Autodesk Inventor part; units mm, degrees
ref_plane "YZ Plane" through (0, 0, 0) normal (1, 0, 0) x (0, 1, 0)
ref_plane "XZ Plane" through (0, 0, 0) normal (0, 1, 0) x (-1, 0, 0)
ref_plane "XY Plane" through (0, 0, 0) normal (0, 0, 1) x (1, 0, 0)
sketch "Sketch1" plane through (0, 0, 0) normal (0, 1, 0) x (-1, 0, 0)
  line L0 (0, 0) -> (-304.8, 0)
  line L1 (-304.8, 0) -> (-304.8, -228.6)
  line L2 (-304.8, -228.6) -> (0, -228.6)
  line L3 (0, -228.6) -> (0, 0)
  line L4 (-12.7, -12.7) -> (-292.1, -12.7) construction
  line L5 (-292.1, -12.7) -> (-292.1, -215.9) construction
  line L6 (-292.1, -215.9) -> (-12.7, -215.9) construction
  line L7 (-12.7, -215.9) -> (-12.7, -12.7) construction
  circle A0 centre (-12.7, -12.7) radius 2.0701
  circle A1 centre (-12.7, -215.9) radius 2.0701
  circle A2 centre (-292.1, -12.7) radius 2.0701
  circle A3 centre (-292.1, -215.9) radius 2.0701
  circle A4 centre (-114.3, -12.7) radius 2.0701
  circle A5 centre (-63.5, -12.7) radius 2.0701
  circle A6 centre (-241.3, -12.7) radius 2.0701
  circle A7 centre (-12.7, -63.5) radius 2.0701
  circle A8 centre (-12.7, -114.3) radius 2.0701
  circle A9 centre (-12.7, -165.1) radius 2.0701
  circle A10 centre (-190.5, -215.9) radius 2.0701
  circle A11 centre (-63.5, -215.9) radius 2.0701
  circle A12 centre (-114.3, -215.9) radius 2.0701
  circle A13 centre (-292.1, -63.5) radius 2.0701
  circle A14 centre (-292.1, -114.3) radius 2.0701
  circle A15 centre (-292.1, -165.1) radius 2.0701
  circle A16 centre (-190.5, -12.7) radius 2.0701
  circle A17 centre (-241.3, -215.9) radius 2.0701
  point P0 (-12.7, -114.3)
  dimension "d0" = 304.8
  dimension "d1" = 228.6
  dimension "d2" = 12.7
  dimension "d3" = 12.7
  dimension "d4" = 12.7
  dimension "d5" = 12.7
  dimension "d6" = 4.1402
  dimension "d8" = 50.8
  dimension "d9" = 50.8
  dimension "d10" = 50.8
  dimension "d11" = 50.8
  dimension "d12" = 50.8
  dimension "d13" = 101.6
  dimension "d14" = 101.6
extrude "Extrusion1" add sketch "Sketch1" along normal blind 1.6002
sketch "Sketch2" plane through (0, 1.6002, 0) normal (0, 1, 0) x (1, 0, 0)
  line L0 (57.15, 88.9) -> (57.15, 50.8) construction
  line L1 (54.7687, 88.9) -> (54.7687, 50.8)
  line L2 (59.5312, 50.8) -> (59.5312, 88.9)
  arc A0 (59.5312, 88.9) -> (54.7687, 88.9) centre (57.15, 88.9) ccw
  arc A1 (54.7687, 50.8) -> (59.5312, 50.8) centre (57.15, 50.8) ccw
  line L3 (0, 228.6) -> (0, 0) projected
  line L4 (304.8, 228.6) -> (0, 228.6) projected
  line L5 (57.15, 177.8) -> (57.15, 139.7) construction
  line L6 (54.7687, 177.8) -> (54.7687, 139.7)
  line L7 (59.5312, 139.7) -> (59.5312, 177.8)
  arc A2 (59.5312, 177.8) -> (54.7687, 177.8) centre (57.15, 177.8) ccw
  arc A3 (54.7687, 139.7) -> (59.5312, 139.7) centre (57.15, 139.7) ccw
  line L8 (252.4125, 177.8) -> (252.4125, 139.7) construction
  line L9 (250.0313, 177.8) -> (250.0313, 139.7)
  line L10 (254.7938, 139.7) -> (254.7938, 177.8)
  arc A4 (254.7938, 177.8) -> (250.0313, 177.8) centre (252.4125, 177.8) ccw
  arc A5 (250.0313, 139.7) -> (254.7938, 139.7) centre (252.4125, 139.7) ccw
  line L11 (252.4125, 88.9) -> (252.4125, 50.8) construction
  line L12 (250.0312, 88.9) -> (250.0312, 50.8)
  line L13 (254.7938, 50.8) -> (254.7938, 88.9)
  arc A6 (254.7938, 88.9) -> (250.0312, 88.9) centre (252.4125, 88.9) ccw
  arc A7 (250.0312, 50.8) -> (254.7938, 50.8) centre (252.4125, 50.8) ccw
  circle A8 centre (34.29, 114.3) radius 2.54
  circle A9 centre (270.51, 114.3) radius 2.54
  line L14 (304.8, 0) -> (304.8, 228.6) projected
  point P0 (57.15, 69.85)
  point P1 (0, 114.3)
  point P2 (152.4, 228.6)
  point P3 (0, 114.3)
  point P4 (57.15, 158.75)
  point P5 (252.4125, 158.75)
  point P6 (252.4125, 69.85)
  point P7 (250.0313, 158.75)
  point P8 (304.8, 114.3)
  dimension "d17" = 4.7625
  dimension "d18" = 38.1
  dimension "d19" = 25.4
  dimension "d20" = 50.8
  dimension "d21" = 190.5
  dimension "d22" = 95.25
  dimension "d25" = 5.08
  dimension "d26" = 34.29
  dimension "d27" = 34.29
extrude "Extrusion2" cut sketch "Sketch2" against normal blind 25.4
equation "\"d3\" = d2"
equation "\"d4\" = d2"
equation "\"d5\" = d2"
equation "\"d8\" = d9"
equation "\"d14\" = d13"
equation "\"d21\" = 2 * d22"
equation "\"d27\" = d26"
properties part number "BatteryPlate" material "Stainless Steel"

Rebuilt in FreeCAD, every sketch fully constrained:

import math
import FreeCAD as App
import Part
import Sketcher
Q = App.Units.Quantity

doc = App.newDocument("Part")
body = doc.addObject("PartDesign::Body", "Body")

sketch1 = doc.addObject("Sketcher::SketchObject", "Sketch")
body.addObject(sketch1)
sketch1.AttachmentSupport = (doc.XZ_Plane, [""])
sketch1.MapMode = "FlatFace"
sketch1.addGeometry(Part.LineSegment(App.Vector(0, -228.6, 0), App.Vector(0, 0, 0)), False)
sketch1.addGeometry(Part.LineSegment(App.Vector(0, 0, 0), App.Vector(304.8, 0, 0)), False)
sketch1.addGeometry(Part.LineSegment(App.Vector(304.8, 0, 0), App.Vector(304.8, -228.6, 0)), False)
sketch1.addGeometry(Part.LineSegment(App.Vector(304.8, -228.6, 0), App.Vector(0, -228.6, 0)), False)
sketch1.addGeometry(Part.Circle(App.Vector(292.1, -215.9, 0), App.Vector(0, 0, 1), 2.1), False)
sketch1.addGeometry(Part.Circle(App.Vector(241.3, -215.9, 0), App.Vector(0, 0, 1), 2.1), False)
sketch1.addGeometry(Part.Circle(App.Vector(190.5, -215.9, 0), App.Vector(0, 0, 1), 2.1), False)
sketch1.addGeometry(Part.Circle(App.Vector(292.1, -165.1, 0), App.Vector(0, 0, 1), 2.1), False)
sketch1.addGeometry(Part.Circle(App.Vector(114.3, -215.9, 0), App.Vector(0, 0, 1), 2.1), False)
sketch1.addGeometry(Part.Circle(App.Vector(63.5, -215.9, 0), App.Vector(0, 0, 1), 2.1), False)
sketch1.addGeometry(Part.Circle(App.Vector(12.7, -215.9, 0), App.Vector(0, 0, 1), 2.1), False)
sketch1.addGeometry(Part.Circle(App.Vector(12.7, -165.1, 0), App.Vector(0, 0, 1), 2.1), False)
sketch1.addGeometry(Part.Circle(App.Vector(292.1, -114.3, 0), App.Vector(0, 0, 1), 2.1), False)
sketch1.addGeometry(Part.Circle(App.Vector(292.1, -63.5, 0), App.Vector(0, 0, 1), 2.1), False)
sketch1.addGeometry(Part.Circle(App.Vector(292.1, -12.7, 0), App.Vector(0, 0, 1), 2.1), False)
sketch1.addGeometry(Part.Circle(App.Vector(241.3, -12.7, 0), App.Vector(0, 0, 1), 2.1), False)
sketch1.addGeometry(Part.Circle(App.Vector(190.5, -12.7, 0), App.Vector(0, 0, 1), 2.1), False)
sketch1.addGeometry(Part.Circle(App.Vector(12.7, -114.3, 0), App.Vector(0, 0, 1), 2.1), False)
sketch1.addGeometry(Part.Circle(App.Vector(12.7, -63.5, 0), App.Vector(0, 0, 1), 2.1), False)
sketch1.addGeometry(Part.Circle(App.Vector(114.3, -12.7, 0), App.Vector(0, 0, 1), 2.1), False)
sketch1.addGeometry(Part.Circle(App.Vector(63.5, -12.7, 0), App.Vector(0, 0, 1), 2.1), False)
sketch1.addGeometry(Part.Circle(App.Vector(12.7, -12.7, 0), App.Vector(0, 0, 1), 2.1), False)
sketch1.addConstraint(Sketcher.Constraint("Coincident", 0, 2, 1, 1))
sketch1.addConstraint(Sketcher.Constraint("Coincident", 1, 2, 2, 1))
sketch1.addConstraint(Sketcher.Constraint("Coincident", 2, 2, 3, 1))
sketch1.addConstraint(Sketcher.Constraint("Coincident", 3, 2, 0, 1))
sketch1.addConstraint(Sketcher.Constraint("Vertical", 0))
sketch1.addConstraint(Sketcher.Constraint("Horizontal", 1))
sketch1.addConstraint(Sketcher.Constraint("Vertical", 2))
sketch1.addConstraint(Sketcher.Constraint("Horizontal", 3))
sketch1.addConstraint(Sketcher.Constraint("Coincident", 0, 2, -1, 1))
sketch1.addConstraint(Sketcher.Constraint("Equal", 4, 5))
sketch1.addConstraint(Sketcher.Constraint("Equal", 5, 6))
sketch1.addConstraint(Sketcher.Constraint("Equal", 6, 7))
sketch1.addConstraint(Sketcher.Constraint("Equal", 7, 8))
sketch1.addConstraint(Sketcher.Constraint("Equal", 8, 9))
sketch1.addConstraint(Sketcher.Constraint("Equal", 9, 10))
sketch1.addConstraint(Sketcher.Constraint("Equal", 10, 11))
sketch1.addConstraint(Sketcher.Constraint("Equal", 11, 12))
sketch1.addConstraint(Sketcher.Constraint("Equal", 12, 13))
sketch1.addConstraint(Sketcher.Constraint("Equal", 13, 14))
sketch1.addConstraint(Sketcher.Constraint("Equal", 14, 15))
sketch1.addConstraint(Sketcher.Constraint("Equal", 15, 16))
sketch1.addConstraint(Sketcher.Constraint("Equal", 16, 17))
sketch1.addConstraint(Sketcher.Constraint("Equal", 17, 18))
sketch1.addConstraint(Sketcher.Constraint("Equal", 18, 19))
sketch1.addConstraint(Sketcher.Constraint("Equal", 19, 20))
sketch1.addConstraint(Sketcher.Constraint("Equal", 20, 21))
sketch1.addConstraint(Sketcher.Constraint("Horizontal", 4, 3, 5, 3))
sketch1.addConstraint(Sketcher.Constraint("Horizontal", 5, 3, 6, 3))
sketch1.addConstraint(Sketcher.Constraint("Horizontal", 6, 3, 8, 3))
sketch1.addConstraint(Sketcher.Constraint("Horizontal", 8, 3, 9, 3))
sketch1.addConstraint(Sketcher.Constraint("Horizontal", 9, 3, 10, 3))
sketch1.addConstraint(Sketcher.Constraint("Horizontal", 7, 3, 11, 3))
sketch1.addConstraint(Sketcher.Constraint("Horizontal", 14, 3, 15, 3))
sketch1.addConstraint(Sketcher.Constraint("Horizontal", 15, 3, 16, 3))
sketch1.addConstraint(Sketcher.Constraint("Horizontal", 12, 3, 17, 3))
sketch1.addConstraint(Sketcher.Constraint("Horizontal", 13, 3, 18, 3))
sketch1.addConstraint(Sketcher.Constraint("Horizontal", 16, 3, 19, 3))
sketch1.addConstraint(Sketcher.Constraint("Horizontal", 19, 3, 20, 3))
sketch1.addConstraint(Sketcher.Constraint("Horizontal", 20, 3, 21, 3))
sketch1.addConstraint(Sketcher.Constraint("Vertical", 4, 3, 7, 3))
sketch1.addConstraint(Sketcher.Constraint("Vertical", 10, 3, 11, 3))
sketch1.addConstraint(Sketcher.Constraint("Vertical", 7, 3, 12, 3))
sketch1.addConstraint(Sketcher.Constraint("Vertical", 12, 3, 13, 3))
sketch1.addConstraint(Sketcher.Constraint("Vertical", 13, 3, 14, 3))
sketch1.addConstraint(Sketcher.Constraint("Vertical", 5, 3, 15, 3))
sketch1.addConstraint(Sketcher.Constraint("Vertical", 6, 3, 16, 3))
sketch1.addConstraint(Sketcher.Constraint("Vertical", 11, 3, 17, 3))
sketch1.addConstraint(Sketcher.Constraint("Vertical", 17, 3, 18, 3))
sketch1.addConstraint(Sketcher.Constraint("Vertical", 8, 3, 19, 3))
sketch1.addConstraint(Sketcher.Constraint("Vertical", 9, 3, 20, 3))
sketch1.addConstraint(Sketcher.Constraint("Vertical", 18, 3, 21, 3))
sketch1.addConstraint(Sketcher.Constraint("DistanceX", 1, 1, 1, 2, Q("12 in")))
sketch1.addConstraint(Sketcher.Constraint("DistanceY", 0, 1, 0, 2, Q("9 in")))
sketch1.addConstraint(Sketcher.Constraint("Diameter", 4, Q("0.163 in")))
sketch1.addConstraint(Sketcher.Constraint("DistanceX", 5, 3, 4, 3, Q("2 in")))
sketch1.addConstraint(Sketcher.Constraint("DistanceX", 6, 3, 5, 3, Q("2 in")))
sketch1.addConstraint(Sketcher.Constraint("DistanceY", 4, 3, 7, 3, Q("2 in")))
sketch1.addConstraint(Sketcher.Constraint("DistanceX", 9, 3, 8, 3, Q("2 in")))
sketch1.addConstraint(Sketcher.Constraint("DistanceX", 9, 3, 4, 3, Q("9 in")))
sketch1.addConstraint(Sketcher.Constraint("DistanceX", 10, 3, 9, 3, Q("2 in")))
sketch1.addConstraint(Sketcher.Constraint("DistanceY", 7, 3, 12, 3, Q("2 in")))
sketch1.addConstraint(Sketcher.Constraint("DistanceY", 12, 3, 13, 3, Q("2 in")))
sketch1.addConstraint(Sketcher.Constraint("DistanceY", 13, 3, 14, 3, Q("2 in")))
sketch1.addConstraint(Sketcher.Constraint("DistanceX", -1, 1, 10, 3, Q("0.5 in")))
sketch1.addConstraint(Sketcher.Constraint("DistanceY", 14, 3, -1, 1, Q("0.5 in")))
pad1 = doc.addObject("PartDesign::Pad", "Pad")
body.addObject(pad1)
pad1.Profile = sketch1
pad1.Length = Q("0.063 in")
pad1.Reversed = True

sketch2 = doc.addObject("Sketcher::SketchObject", "Sketch001")
body.addObject(sketch2)
sketch2.AttachmentSupport = (doc.XZ_Plane, [""])
sketch2.MapMode = "FlatFace"
sketch2.AttachmentOffset = App.Placement(App.Vector(0, 0, -0.063 * 25.4), App.Rotation())
sketch2.addGeometry(Part.ArcOfCircle(Part.Circle(App.Vector(57.1, -88.9, 0), App.Vector(0, 0, 1), 2.4), math.radians(180), math.radians(360)), False)
sketch2.addGeometry(Part.LineSegment(App.Vector(54.8, -88.9, 0), App.Vector(54.8, -50.8, 0)), False)
sketch2.addGeometry(Part.ArcOfCircle(Part.Circle(App.Vector(57.1, -50.8, 0), App.Vector(0, 0, 1), 2.4), math.radians(0), math.radians(180)), False)
sketch2.addGeometry(Part.LineSegment(App.Vector(59.5, -50.8, 0), App.Vector(59.5, -88.9, 0)), False)
sketch2.addGeometry(Part.ArcOfCircle(Part.Circle(App.Vector(57.1, -177.8, 0), App.Vector(0, 0, 1), 2.4), math.radians(180), math.radians(360)), False)
sketch2.addGeometry(Part.LineSegment(App.Vector(54.8, -177.8, 0), App.Vector(54.8, -139.7, 0)), False)
sketch2.addGeometry(Part.ArcOfCircle(Part.Circle(App.Vector(57.1, -139.7, 0), App.Vector(0, 0, 1), 2.4), math.radians(0), math.radians(180)), False)
sketch2.addGeometry(Part.LineSegment(App.Vector(59.5, -139.7, 0), App.Vector(59.5, -177.8, 0)), False)
sketch2.addGeometry(Part.ArcOfCircle(Part.Circle(App.Vector(252.4, -177.8, 0), App.Vector(0, 0, 1), 2.4), math.radians(180), math.radians(360)), False)
sketch2.addGeometry(Part.LineSegment(App.Vector(250, -177.8, 0), App.Vector(250, -139.7, 0)), False)
sketch2.addGeometry(Part.ArcOfCircle(Part.Circle(App.Vector(252.4, -139.7, 0), App.Vector(0, 0, 1), 2.4), math.radians(0), math.radians(180)), False)
sketch2.addGeometry(Part.LineSegment(App.Vector(254.8, -139.7, 0), App.Vector(254.8, -177.8, 0)), False)
sketch2.addGeometry(Part.ArcOfCircle(Part.Circle(App.Vector(252.4, -88.9, 0), App.Vector(0, 0, 1), 2.4), math.radians(180), math.radians(360)), False)
sketch2.addGeometry(Part.LineSegment(App.Vector(250, -88.9, 0), App.Vector(250, -50.8, 0)), False)
sketch2.addGeometry(Part.ArcOfCircle(Part.Circle(App.Vector(252.4, -50.8, 0), App.Vector(0, 0, 1), 2.4), math.radians(0), math.radians(180)), False)
sketch2.addGeometry(Part.LineSegment(App.Vector(254.8, -50.8, 0), App.Vector(254.8, -88.9, 0)), False)
sketch2.addGeometry(Part.Circle(App.Vector(34.3, -114.3, 0), App.Vector(0, 0, 1), 2.5), False)
sketch2.addGeometry(Part.Circle(App.Vector(270.5, -114.3, 0), App.Vector(0, 0, 1), 2.5), False)
sketch2.addConstraint(Sketcher.Constraint("Tangent", 0, 1, 1, 1))
sketch2.addConstraint(Sketcher.Constraint("Tangent", 1, 2, 2, 2))
sketch2.addConstraint(Sketcher.Constraint("Tangent", 2, 1, 3, 1))
sketch2.addConstraint(Sketcher.Constraint("Tangent", 3, 2, 0, 2))
sketch2.addConstraint(Sketcher.Constraint("Tangent", 4, 1, 5, 1))
sketch2.addConstraint(Sketcher.Constraint("Tangent", 5, 2, 6, 2))
sketch2.addConstraint(Sketcher.Constraint("Tangent", 6, 1, 7, 1))
sketch2.addConstraint(Sketcher.Constraint("Tangent", 7, 2, 4, 2))
sketch2.addConstraint(Sketcher.Constraint("Tangent", 8, 1, 9, 1))
sketch2.addConstraint(Sketcher.Constraint("Tangent", 9, 2, 10, 2))
sketch2.addConstraint(Sketcher.Constraint("Tangent", 10, 1, 11, 1))
sketch2.addConstraint(Sketcher.Constraint("Tangent", 11, 2, 8, 2))
sketch2.addConstraint(Sketcher.Constraint("Tangent", 12, 1, 13, 1))
sketch2.addConstraint(Sketcher.Constraint("Tangent", 13, 2, 14, 2))
sketch2.addConstraint(Sketcher.Constraint("Tangent", 14, 1, 15, 1))
sketch2.addConstraint(Sketcher.Constraint("Tangent", 15, 2, 12, 2))
sketch2.addConstraint(Sketcher.Constraint("Vertical", 1))
sketch2.addConstraint(Sketcher.Constraint("Vertical", 3))
sketch2.addConstraint(Sketcher.Constraint("Vertical", 5))
sketch2.addConstraint(Sketcher.Constraint("Vertical", 7))
sketch2.addConstraint(Sketcher.Constraint("Vertical", 9))
sketch2.addConstraint(Sketcher.Constraint("Vertical", 11))
sketch2.addConstraint(Sketcher.Constraint("Vertical", 13))
sketch2.addConstraint(Sketcher.Constraint("Vertical", 15))
sketch2.addConstraint(Sketcher.Constraint("Equal", 2, 4))
sketch2.addConstraint(Sketcher.Constraint("Equal", 6, 8))
sketch2.addConstraint(Sketcher.Constraint("Equal", 10, 12))
sketch2.addConstraint(Sketcher.Constraint("Equal", 16, 17))
sketch2.addConstraint(Sketcher.Constraint("Horizontal", 4, 3, 8, 3))
sketch2.addConstraint(Sketcher.Constraint("Horizontal", 6, 3, 10, 3))
sketch2.addConstraint(Sketcher.Constraint("Horizontal", 0, 3, 12, 3))
sketch2.addConstraint(Sketcher.Constraint("Horizontal", 2, 3, 14, 3))
sketch2.addConstraint(Sketcher.Constraint("Horizontal", 16, 3, 17, 3))
sketch2.addConstraint(Sketcher.Constraint("Vertical", 2, 3, 4, 3))
sketch2.addConstraint(Sketcher.Constraint("Vertical", 10, 3, 12, 3))
sketch2.addConstraint(Sketcher.Constraint("Equal", 3, 5))
sketch2.addConstraint(Sketcher.Constraint("Diameter", 16, Q("0.2 in")))
sketch2.addConstraint(Sketcher.Constraint("DistanceY", 1, 1, 1, 2, Q("1.5 in")))
sketch2.addConstraint(Sketcher.Constraint("DistanceY", 2, 3, -1, 1, Q("2 in")))
sketch2.addConstraint(Sketcher.Constraint("Radius", 0, Q("0.093748 in")))
sketch2.addConstraint(Sketcher.Constraint("DistanceY", 6, 3, 0, 3, Q("2 in")))
sketch2.addConstraint(Sketcher.Constraint("DistanceY", 16, 3, 0, 3, Q("1 in")))
sketch2.addConstraint(Sketcher.Constraint("DistanceX", -1, 1, 16, 3, Q("1.35 in")))
sketch2.addConstraint(Sketcher.Constraint("DistanceX", 16, 3, 0, 3, Q("0.9 in")))
sketch2.addConstraint(Sketcher.Constraint("DistanceX", 0, 3, 17, 3, Q("8.4 in")))
sketch2.addConstraint(Sketcher.Constraint("DistanceX", -1, 1, 8, 3, Q("9.9375 in")))
pocket1 = doc.addObject("PartDesign::Pocket", "Pocket")
body.addObject(pocket1)
pocket1.Profile = sketch2
pocket1.Length = Q("1 in")
pocket1.Reversed = True

doc.recompute()
